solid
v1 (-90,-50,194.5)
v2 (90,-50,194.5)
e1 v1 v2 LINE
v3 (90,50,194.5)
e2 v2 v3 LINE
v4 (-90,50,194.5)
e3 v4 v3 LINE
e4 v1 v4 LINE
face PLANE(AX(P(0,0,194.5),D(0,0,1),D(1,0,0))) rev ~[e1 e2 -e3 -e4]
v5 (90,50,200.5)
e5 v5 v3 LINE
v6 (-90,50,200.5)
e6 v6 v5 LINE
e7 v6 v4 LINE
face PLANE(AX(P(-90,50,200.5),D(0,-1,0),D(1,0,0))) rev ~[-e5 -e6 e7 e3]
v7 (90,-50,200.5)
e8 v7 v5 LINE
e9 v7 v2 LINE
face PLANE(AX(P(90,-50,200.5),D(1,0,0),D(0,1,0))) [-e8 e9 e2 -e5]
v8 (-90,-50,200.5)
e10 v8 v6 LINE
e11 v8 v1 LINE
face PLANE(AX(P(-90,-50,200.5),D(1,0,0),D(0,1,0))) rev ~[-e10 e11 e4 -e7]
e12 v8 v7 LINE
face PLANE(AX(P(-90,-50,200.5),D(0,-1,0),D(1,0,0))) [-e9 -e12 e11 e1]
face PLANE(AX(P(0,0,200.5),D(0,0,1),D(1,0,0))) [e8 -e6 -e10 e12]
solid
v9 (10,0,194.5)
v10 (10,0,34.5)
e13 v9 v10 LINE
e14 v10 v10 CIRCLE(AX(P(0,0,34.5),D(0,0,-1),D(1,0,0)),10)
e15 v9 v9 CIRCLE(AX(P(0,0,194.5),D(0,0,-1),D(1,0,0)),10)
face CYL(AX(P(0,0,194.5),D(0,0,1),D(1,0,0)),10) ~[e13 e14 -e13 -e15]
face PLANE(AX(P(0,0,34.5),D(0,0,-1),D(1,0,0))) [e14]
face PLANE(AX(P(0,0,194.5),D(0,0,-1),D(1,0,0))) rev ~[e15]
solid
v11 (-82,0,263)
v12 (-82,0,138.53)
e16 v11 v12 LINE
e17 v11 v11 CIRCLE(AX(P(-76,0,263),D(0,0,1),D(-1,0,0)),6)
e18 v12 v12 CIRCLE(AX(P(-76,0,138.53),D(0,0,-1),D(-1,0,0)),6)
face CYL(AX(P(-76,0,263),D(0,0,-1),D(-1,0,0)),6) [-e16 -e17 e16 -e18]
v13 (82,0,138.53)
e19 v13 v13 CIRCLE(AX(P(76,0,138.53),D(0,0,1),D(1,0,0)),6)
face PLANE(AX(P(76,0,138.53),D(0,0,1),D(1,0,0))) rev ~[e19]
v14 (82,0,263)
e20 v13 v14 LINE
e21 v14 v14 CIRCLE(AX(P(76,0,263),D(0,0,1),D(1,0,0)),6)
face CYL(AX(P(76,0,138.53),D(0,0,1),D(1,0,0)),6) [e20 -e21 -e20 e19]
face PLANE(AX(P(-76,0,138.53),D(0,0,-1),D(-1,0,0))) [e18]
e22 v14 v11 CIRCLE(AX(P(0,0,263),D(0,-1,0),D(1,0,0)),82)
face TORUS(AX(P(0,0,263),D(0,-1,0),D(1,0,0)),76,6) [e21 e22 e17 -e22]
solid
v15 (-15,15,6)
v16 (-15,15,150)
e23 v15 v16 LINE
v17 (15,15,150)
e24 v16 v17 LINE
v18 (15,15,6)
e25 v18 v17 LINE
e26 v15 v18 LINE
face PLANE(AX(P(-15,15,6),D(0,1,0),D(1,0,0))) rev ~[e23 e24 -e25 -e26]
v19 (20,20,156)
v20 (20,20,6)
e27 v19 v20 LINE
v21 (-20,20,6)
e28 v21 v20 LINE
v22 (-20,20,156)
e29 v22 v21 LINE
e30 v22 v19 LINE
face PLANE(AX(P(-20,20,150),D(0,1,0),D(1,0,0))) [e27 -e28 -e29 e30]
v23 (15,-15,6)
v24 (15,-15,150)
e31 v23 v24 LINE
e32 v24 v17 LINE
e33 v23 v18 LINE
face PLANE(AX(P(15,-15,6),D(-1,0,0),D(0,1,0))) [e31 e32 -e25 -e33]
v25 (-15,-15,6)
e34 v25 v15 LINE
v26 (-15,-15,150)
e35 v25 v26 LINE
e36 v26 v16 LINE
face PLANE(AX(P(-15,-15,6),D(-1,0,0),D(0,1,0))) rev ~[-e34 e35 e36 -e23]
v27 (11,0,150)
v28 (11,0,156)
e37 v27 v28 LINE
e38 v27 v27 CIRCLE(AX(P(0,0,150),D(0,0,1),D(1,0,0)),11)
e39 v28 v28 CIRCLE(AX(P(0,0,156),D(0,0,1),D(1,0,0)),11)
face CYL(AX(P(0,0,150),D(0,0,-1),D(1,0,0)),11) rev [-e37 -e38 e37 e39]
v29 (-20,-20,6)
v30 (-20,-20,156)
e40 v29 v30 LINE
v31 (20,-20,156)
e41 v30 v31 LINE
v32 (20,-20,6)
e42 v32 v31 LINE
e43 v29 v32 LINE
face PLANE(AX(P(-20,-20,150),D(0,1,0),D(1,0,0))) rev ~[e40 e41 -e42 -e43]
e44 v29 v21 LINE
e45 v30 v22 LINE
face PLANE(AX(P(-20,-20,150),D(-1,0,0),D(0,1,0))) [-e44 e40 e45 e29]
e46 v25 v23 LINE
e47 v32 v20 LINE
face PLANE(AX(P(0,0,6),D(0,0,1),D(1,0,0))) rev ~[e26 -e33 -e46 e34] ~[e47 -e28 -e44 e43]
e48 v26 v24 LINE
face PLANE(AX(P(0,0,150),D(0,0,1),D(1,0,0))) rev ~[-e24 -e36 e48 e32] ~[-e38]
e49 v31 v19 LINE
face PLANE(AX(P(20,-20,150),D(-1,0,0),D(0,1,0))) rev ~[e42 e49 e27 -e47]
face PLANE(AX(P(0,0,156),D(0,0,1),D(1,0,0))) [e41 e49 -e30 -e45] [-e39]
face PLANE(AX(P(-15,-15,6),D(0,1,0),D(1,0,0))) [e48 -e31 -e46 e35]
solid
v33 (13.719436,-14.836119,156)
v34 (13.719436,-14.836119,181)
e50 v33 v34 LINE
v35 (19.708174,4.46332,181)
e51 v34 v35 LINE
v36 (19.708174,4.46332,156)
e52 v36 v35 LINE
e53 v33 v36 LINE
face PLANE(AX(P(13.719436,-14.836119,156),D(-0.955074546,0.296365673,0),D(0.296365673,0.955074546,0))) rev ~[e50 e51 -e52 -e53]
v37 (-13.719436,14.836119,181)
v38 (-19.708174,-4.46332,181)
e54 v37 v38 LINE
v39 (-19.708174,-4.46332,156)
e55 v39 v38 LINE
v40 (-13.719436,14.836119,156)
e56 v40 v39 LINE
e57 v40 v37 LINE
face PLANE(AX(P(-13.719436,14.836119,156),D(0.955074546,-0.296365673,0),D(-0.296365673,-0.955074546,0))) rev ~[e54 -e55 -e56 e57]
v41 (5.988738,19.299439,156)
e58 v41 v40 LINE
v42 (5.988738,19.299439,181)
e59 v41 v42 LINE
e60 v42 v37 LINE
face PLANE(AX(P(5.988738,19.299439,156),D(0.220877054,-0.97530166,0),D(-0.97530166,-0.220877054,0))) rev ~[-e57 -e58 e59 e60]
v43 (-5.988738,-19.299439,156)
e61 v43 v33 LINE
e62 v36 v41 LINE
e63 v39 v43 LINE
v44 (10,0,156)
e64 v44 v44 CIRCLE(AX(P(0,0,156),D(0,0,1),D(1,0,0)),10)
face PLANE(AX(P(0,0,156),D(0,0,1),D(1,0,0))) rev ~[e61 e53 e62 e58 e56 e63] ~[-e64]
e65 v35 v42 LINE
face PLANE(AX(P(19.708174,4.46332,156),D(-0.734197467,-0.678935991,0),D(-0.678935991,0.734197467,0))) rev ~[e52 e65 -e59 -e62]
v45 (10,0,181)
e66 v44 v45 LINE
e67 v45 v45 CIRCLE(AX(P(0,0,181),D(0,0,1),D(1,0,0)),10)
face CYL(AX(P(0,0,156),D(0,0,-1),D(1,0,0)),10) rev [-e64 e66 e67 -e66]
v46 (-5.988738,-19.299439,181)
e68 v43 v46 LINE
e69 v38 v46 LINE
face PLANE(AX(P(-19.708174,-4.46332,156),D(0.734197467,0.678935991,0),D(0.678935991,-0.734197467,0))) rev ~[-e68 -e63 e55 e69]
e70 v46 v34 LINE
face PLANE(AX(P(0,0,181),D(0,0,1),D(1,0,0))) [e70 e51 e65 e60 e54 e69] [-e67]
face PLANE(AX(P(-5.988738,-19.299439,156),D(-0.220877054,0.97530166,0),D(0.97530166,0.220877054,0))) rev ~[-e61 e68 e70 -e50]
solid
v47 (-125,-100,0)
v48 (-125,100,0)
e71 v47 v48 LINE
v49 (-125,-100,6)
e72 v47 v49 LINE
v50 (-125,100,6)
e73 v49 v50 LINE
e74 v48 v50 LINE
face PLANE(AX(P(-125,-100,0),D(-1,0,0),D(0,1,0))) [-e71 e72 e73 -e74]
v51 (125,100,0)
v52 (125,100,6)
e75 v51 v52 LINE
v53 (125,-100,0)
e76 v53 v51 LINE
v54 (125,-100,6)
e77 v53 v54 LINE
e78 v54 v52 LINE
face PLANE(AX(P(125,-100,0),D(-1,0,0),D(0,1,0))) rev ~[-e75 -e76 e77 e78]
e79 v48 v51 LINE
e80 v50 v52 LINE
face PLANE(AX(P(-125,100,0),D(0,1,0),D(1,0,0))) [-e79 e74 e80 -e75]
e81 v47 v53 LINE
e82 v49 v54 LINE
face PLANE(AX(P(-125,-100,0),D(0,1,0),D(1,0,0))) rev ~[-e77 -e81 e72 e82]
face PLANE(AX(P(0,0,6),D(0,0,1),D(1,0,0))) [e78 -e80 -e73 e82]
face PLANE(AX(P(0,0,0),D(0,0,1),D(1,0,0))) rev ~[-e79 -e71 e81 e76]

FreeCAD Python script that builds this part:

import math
import FreeCAD as App
import Part
import Sketcher
from FreeCAD import Vector
Q = App.Units.Quantity

doc = App.newDocument("Part")
body = doc.addObject("PartDesign::Body", "Body")

# Sketch on XY plane
sketch1 = body.newObject("Sketcher::SketchObject", "Sketch")
sketch1.AttachmentSupport = (doc.getObject("XY_Plane"), [""])
sketch1.MapMode = "FlatFace"
sketch1.addGeometry([
    Part.LineSegment(Vector(-125, 100, 0), Vector(-125, -100, 0)),
    Part.LineSegment(Vector(-125, -100, 0), Vector(125, -100, 0)),
    Part.LineSegment(Vector(125, -100, 0), Vector(125, 100, 0)),
    Part.LineSegment(Vector(125, 100, 0), Vector(-125, 100, 0)),
], False)
sketch1.addConstraint([
    Sketcher.Constraint("Coincident", 0, 2, 1, 1),
    Sketcher.Constraint("Coincident", 1, 2, 2, 1),
    Sketcher.Constraint("Coincident", 2, 2, 3, 1),
    Sketcher.Constraint("Coincident", 3, 2, 0, 1),
    Sketcher.Constraint("Vertical", 0),
    Sketcher.Constraint("Horizontal", 1),
    Sketcher.Constraint("Vertical", 2),
    Sketcher.Constraint("Horizontal", 3),
    Sketcher.Constraint("Symmetric", 0, 2, 2, 2, -1, 1),
    Sketcher.Constraint("DistanceX", 1, 1, 1, 2, Q("250 mm")),
    Sketcher.Constraint("DistanceY", 0, 2, 0, 1, Q("200 mm")),
])
pad1 = body.newObject("PartDesign::Pad", "Pad")
pad1.Profile = sketch1
pad1.Length = 6
body2 = doc.addObject("PartDesign::Body", "Body001")

# Sketch on XY plane
sketch2 = body2.newObject("Sketcher::SketchObject", "Sketch001")
sketch2.AttachmentSupport = (doc.getObject("XY_Plane001"), [""])
sketch2.MapMode = "FlatFace"
sketch2.AttachmentOffset = App.Placement(Vector(0, 0, 6), App.Rotation())
sketch2.addGeometry([
    Part.LineSegment(Vector(-20, 20, 0), Vector(-20, -20, 0)),  # 0
    Part.LineSegment(Vector(-20, -20, 0), Vector(20, -20, 0)),  # 1
    Part.LineSegment(Vector(20, -20, 0), Vector(20, 20, 0)),  # 2
    Part.LineSegment(Vector(20, 20, 0), Vector(-20, 20, 0)),  # 3
    Part.LineSegment(Vector(15, -15, 0), Vector(-15, -15, 0)),  # 4
    Part.LineSegment(Vector(-15, -15, 0), Vector(-15, 15, 0)),  # 5
    Part.LineSegment(Vector(-15, 15, 0), Vector(15, 15, 0)),  # 6
    Part.LineSegment(Vector(15, 15, 0), Vector(15, -15, 0)),  # 7
], False)
sketch2.addConstraint([
    Sketcher.Constraint("Coincident", 0, 2, 1, 1),
    Sketcher.Constraint("Coincident", 1, 2, 2, 1),
    Sketcher.Constraint("Coincident", 2, 2, 3, 1),
    Sketcher.Constraint("Coincident", 3, 2, 0, 1),
    Sketcher.Constraint("Coincident", 4, 2, 5, 1),
    Sketcher.Constraint("Coincident", 5, 2, 6, 1),
    Sketcher.Constraint("Coincident", 6, 2, 7, 1),
    Sketcher.Constraint("Coincident", 7, 2, 4, 1),
    Sketcher.Constraint("Vertical", 0),
    Sketcher.Constraint("Horizontal", 1),
    Sketcher.Constraint("Vertical", 2),
    Sketcher.Constraint("Horizontal", 3),
    Sketcher.Constraint("Horizontal", 4),
    Sketcher.Constraint("Vertical", 5),
    Sketcher.Constraint("Horizontal", 6),
    Sketcher.Constraint("Vertical", 7),
    Sketcher.Constraint("Symmetric", 0, 2, 2, 2, -1, 1),
    Sketcher.Constraint("Symmetric", 4, 2, 6, 2, -1, 1),
    Sketcher.Constraint("Equal", 3, 0),
    Sketcher.Constraint("Equal", 6, 5),
    Sketcher.Constraint("DistanceX", 1, 1, 1, 2, Q("40 mm")),
    Sketcher.Constraint("DistanceX", 4, 2, 4, 1, Q("30 mm")),
])
pad2 = body2.newObject("PartDesign::Pad", "Pad001")
pad2.Profile = sketch2
pad2.Length = 144

# Sketch on XY plane
sketch3 = body2.newObject("Sketcher::SketchObject", "Sketch002")
sketch3.AttachmentSupport = (doc.getObject("XY_Plane001"), [""])
sketch3.MapMode = "FlatFace"
sketch3.AttachmentOffset = App.Placement(Vector(0, 0, 150), App.Rotation())
sketch3.addGeometry([
    Part.LineSegment(Vector(-20, 20, 0), Vector(-20, -20, 0)),  # 0
    Part.LineSegment(Vector(-20, -20, 0), Vector(20, -20, 0)),  # 1
    Part.LineSegment(Vector(20, -20, 0), Vector(20, 20, 0)),  # 2
    Part.LineSegment(Vector(20, 20, 0), Vector(-20, 20, 0)),  # 3
    Part.Circle(Vector(0, 0, 0), Vector(0, 0, 1), 11),  # 4
], False)
sketch3.addConstraint([
    Sketcher.Constraint("Coincident", 0, 2, 1, 1),
    Sketcher.Constraint("Coincident", 1, 2, 2, 1),
    Sketcher.Constraint("Coincident", 2, 2, 3, 1),
    Sketcher.Constraint("Coincident", 3, 2, 0, 1),
    Sketcher.Constraint("Vertical", 0),
    Sketcher.Constraint("Horizontal", 1),
    Sketcher.Constraint("Vertical", 2),
    Sketcher.Constraint("Horizontal", 3),
    Sketcher.Constraint("Coincident", 4, 3, -1, 1),
    Sketcher.Constraint("Symmetric", 0, 2, 2, 2, -1, 1),
    Sketcher.Constraint("Equal", 3, 0),
    Sketcher.Constraint("Diameter", 4, Q("22 mm")),
    Sketcher.Constraint("DistanceX", 1, 1, 1, 2, Q("40 mm")),
])
pad3 = body2.newObject("PartDesign::Pad", "Pad002")
pad3.Profile = sketch3
pad3.Length = 6
body3 = doc.addObject("PartDesign::Body", "Body002")

# Sketch on XY plane
sketch4 = body3.newObject("Sketcher::SketchObject", "Sketch003")
sketch4.AttachmentSupport = (doc.getObject("XY_Plane002"), [""])
sketch4.MapMode = "FlatFace"
sketch4.AttachmentOffset = App.Placement(Vector(0, 0, 200.5), App.Rotation())
sketch4.addGeometry([
    Part.LineSegment(Vector(-90, 50, 0), Vector(-90, -50, 0)),
    Part.LineSegment(Vector(-90, -50, 0), Vector(90, -50, 0)),
    Part.LineSegment(Vector(90, -50, 0), Vector(90, 50, 0)),
    Part.LineSegment(Vector(90, 50, 0), Vector(-90, 50, 0)),
], False)
sketch4.addConstraint([
    Sketcher.Constraint("Coincident", 0, 2, 1, 1),
    Sketcher.Constraint("Coincident", 1, 2, 2, 1),
    Sketcher.Constraint("Coincident", 2, 2, 3, 1),
    Sketcher.Constraint("Coincident", 3, 2, 0, 1),
    Sketcher.Constraint("Vertical", 0),
    Sketcher.Constraint("Horizontal", 1),
    Sketcher.Constraint("Vertical", 2),
    Sketcher.Constraint("Horizontal", 3),
    Sketcher.Constraint("Symmetric", 0, 2, 2, 2, -1, 1),
    Sketcher.Constraint("DistanceX", 1, 1, 1, 2, Q("180 mm")),
    Sketcher.Constraint("DistanceY", 0, 2, 0, 1, Q("100 mm")),
])
pad4 = body3.newObject("PartDesign::Pad", "Pad003")
pad4.Profile = sketch4
pad4.Length = 6
pad4.Reversed = True
body4 = doc.addObject("PartDesign::Body", "Body003")

# Sketch on XY plane
sketch5 = body4.newObject("Sketcher::SketchObject", "Sketch004")
sketch5.AttachmentSupport = (doc.getObject("XY_Plane003"), [""])
sketch5.MapMode = "FlatFace"
sketch5.AttachmentOffset = App.Placement(Vector(0, 0, 194.5), App.Rotation())
sketch5.addGeometry(Part.Circle(Vector(0, 0, 0), Vector(0, 0, 1), 10), False)
sketch5.addConstraint([
    Sketcher.Constraint("Coincident", 0, 3, -1, 1),
    Sketcher.Constraint("Diameter", 0, Q("20 mm")),
])
pad5 = body4.newObject("PartDesign::Pad", "Pad004")
pad5.Profile = sketch5
pad5.Length = 160
pad5.Reversed = True
body5 = doc.addObject("PartDesign::Body", "Body004")

# Sketch on XY plane
sketch6 = body5.newObject("Sketcher::SketchObject", "Sketch005")
sketch6.AttachmentSupport = (doc.getObject("XY_Plane004"), [""])
sketch6.MapMode = "FlatFace"
sketch6.AttachmentOffset = App.Placement(Vector(0, 0, 138.53), App.Rotation())
sketch6.addGeometry(Part.Circle(Vector(76, 0, 0), Vector(0, 0, 1), 6), False)
sketch6.addConstraint([
    Sketcher.Constraint("PointOnObject", 0, 3, -1),
    Sketcher.Constraint("Diameter", 0, Q("12 mm")),
    Sketcher.Constraint("DistanceX", -1, 1, 0, 3, Q("76 mm")),
])

# Sketch on XZ plane
sketch7 = body5.newObject("Sketcher::SketchObject", "Sketch006")
sketch7.AttachmentSupport = (doc.getObject("XZ_Plane004"), [""])
sketch7.MapMode = "FlatFace"
sketch7.addGeometry([
    Part.LineSegment(Vector(76, 139, 0), Vector(76, 263, 0)),
    Part.ArcOfCircle(Part.Circle(Vector(0, 263, 0), Vector(0, 0, 1), 76), math.radians(0), math.radians(180)),
    Part.LineSegment(Vector(-76, 263, 0), Vector(-76, 139, 0)),
], False)
sketch7.addConstraint([
    Sketcher.Constraint("Tangent", 0, 2, 1, 1),
    Sketcher.Constraint("Tangent", 1, 2, 2, 1),
    Sketcher.Constraint("Vertical", 0),
    Sketcher.Constraint("Vertical", 2),
    Sketcher.Constraint("Symmetric", 0, 1, 2, 2, -2),
    Sketcher.Constraint("Radius", 1, Q("76 mm")),
    Sketcher.Constraint("DistanceY", -1, 1, 1, 3, Q("263 mm")),
    Sketcher.Constraint("DistanceY", 0, 1, 0, 2, Q("124.47 mm")),
])
doc.recompute()

additivepipe = body5.newObject("PartDesign::AdditivePipe", "AdditivePipe")
additivepipe.Profile = sketch6
additivepipe.Spine = (sketch7, ["Edge1", "Edge2", "Edge3"])
body6 = doc.addObject("PartDesign::Body", "Body005")

# Sketch on XY plane
sketch8 = body6.newObject("Sketcher::SketchObject", "Sketch007")
sketch8.AttachmentSupport = (doc.getObject("XY_Plane005"), [""])
sketch8.MapMode = "FlatFace"
sketch8.AttachmentOffset = App.Placement(Vector(0, 0, 156), App.Rotation())
sketch8.addGeometry([
    Part.LineSegment(Vector(-20, -4, 0), Vector(-6, -19, 0)),  # 0
    Part.LineSegment(Vector(-6, -19, 0), Vector(14, -15, 0)),  # 1
    Part.LineSegment(Vector(14, -15, 0), Vector(20, 4, 0)),  # 2
    Part.LineSegment(Vector(20, 4, 0), Vector(6, 19, 0)),  # 3
    Part.LineSegment(Vector(6, 19, 0), Vector(-14, 15, 0)),  # 4
    Part.LineSegment(Vector(-14, 15, 0), Vector(-20, -4, 0)),  # 5
    Part.Circle(Vector(0, 0, 0), Vector(0, 0, 1), 10),  # 6
], False)
sketch8.addConstraint([
    Sketcher.Constraint("Coincident", 0, 2, 1, 1),
    Sketcher.Constraint("Coincident", 1, 2, 2, 1),
    Sketcher.Constraint("Coincident", 2, 2, 3, 1),
    Sketcher.Constraint("Coincident", 3, 2, 4, 1),
    Sketcher.Constraint("Coincident", 4, 2, 5, 1),
    Sketcher.Constraint("Coincident", 5, 2, 0, 1),
    Sketcher.Constraint("Coincident", 6, 3, -1, 1),
    Sketcher.Constraint("Symmetric", 0, 2, 3, 2, -1, 1),
    Sketcher.Constraint("Symmetric", 1, 2, 4, 2, -1, 1),
    Sketcher.Constraint("Symmetric", 2, 2, 5, 2, -1, 1),
    Sketcher.Constraint("Equal", 0, 1),
    Sketcher.Constraint("Equal", 1, 2),
    Sketcher.Constraint("Diameter", 6, Q("20 mm")),
    Sketcher.Constraint("DistanceX", 3, 2, 1, 2, Q("7.730698 mm")),
    Sketcher.Constraint("DistanceY", 2, 2, 4, 2, Q("10.372799 mm")),
    Sketcher.Constraint("Distance", 0, Q("20.20726 mm")),
    Sketcher.Constraint("DistanceY", 0, 2, -1, 1, Q("19.299439 mm")),
])
pad6 = body6.newObject("PartDesign::Pad", "Pad005")
pad6.Profile = sketch8
pad6.Length = 25

doc.recompute()
